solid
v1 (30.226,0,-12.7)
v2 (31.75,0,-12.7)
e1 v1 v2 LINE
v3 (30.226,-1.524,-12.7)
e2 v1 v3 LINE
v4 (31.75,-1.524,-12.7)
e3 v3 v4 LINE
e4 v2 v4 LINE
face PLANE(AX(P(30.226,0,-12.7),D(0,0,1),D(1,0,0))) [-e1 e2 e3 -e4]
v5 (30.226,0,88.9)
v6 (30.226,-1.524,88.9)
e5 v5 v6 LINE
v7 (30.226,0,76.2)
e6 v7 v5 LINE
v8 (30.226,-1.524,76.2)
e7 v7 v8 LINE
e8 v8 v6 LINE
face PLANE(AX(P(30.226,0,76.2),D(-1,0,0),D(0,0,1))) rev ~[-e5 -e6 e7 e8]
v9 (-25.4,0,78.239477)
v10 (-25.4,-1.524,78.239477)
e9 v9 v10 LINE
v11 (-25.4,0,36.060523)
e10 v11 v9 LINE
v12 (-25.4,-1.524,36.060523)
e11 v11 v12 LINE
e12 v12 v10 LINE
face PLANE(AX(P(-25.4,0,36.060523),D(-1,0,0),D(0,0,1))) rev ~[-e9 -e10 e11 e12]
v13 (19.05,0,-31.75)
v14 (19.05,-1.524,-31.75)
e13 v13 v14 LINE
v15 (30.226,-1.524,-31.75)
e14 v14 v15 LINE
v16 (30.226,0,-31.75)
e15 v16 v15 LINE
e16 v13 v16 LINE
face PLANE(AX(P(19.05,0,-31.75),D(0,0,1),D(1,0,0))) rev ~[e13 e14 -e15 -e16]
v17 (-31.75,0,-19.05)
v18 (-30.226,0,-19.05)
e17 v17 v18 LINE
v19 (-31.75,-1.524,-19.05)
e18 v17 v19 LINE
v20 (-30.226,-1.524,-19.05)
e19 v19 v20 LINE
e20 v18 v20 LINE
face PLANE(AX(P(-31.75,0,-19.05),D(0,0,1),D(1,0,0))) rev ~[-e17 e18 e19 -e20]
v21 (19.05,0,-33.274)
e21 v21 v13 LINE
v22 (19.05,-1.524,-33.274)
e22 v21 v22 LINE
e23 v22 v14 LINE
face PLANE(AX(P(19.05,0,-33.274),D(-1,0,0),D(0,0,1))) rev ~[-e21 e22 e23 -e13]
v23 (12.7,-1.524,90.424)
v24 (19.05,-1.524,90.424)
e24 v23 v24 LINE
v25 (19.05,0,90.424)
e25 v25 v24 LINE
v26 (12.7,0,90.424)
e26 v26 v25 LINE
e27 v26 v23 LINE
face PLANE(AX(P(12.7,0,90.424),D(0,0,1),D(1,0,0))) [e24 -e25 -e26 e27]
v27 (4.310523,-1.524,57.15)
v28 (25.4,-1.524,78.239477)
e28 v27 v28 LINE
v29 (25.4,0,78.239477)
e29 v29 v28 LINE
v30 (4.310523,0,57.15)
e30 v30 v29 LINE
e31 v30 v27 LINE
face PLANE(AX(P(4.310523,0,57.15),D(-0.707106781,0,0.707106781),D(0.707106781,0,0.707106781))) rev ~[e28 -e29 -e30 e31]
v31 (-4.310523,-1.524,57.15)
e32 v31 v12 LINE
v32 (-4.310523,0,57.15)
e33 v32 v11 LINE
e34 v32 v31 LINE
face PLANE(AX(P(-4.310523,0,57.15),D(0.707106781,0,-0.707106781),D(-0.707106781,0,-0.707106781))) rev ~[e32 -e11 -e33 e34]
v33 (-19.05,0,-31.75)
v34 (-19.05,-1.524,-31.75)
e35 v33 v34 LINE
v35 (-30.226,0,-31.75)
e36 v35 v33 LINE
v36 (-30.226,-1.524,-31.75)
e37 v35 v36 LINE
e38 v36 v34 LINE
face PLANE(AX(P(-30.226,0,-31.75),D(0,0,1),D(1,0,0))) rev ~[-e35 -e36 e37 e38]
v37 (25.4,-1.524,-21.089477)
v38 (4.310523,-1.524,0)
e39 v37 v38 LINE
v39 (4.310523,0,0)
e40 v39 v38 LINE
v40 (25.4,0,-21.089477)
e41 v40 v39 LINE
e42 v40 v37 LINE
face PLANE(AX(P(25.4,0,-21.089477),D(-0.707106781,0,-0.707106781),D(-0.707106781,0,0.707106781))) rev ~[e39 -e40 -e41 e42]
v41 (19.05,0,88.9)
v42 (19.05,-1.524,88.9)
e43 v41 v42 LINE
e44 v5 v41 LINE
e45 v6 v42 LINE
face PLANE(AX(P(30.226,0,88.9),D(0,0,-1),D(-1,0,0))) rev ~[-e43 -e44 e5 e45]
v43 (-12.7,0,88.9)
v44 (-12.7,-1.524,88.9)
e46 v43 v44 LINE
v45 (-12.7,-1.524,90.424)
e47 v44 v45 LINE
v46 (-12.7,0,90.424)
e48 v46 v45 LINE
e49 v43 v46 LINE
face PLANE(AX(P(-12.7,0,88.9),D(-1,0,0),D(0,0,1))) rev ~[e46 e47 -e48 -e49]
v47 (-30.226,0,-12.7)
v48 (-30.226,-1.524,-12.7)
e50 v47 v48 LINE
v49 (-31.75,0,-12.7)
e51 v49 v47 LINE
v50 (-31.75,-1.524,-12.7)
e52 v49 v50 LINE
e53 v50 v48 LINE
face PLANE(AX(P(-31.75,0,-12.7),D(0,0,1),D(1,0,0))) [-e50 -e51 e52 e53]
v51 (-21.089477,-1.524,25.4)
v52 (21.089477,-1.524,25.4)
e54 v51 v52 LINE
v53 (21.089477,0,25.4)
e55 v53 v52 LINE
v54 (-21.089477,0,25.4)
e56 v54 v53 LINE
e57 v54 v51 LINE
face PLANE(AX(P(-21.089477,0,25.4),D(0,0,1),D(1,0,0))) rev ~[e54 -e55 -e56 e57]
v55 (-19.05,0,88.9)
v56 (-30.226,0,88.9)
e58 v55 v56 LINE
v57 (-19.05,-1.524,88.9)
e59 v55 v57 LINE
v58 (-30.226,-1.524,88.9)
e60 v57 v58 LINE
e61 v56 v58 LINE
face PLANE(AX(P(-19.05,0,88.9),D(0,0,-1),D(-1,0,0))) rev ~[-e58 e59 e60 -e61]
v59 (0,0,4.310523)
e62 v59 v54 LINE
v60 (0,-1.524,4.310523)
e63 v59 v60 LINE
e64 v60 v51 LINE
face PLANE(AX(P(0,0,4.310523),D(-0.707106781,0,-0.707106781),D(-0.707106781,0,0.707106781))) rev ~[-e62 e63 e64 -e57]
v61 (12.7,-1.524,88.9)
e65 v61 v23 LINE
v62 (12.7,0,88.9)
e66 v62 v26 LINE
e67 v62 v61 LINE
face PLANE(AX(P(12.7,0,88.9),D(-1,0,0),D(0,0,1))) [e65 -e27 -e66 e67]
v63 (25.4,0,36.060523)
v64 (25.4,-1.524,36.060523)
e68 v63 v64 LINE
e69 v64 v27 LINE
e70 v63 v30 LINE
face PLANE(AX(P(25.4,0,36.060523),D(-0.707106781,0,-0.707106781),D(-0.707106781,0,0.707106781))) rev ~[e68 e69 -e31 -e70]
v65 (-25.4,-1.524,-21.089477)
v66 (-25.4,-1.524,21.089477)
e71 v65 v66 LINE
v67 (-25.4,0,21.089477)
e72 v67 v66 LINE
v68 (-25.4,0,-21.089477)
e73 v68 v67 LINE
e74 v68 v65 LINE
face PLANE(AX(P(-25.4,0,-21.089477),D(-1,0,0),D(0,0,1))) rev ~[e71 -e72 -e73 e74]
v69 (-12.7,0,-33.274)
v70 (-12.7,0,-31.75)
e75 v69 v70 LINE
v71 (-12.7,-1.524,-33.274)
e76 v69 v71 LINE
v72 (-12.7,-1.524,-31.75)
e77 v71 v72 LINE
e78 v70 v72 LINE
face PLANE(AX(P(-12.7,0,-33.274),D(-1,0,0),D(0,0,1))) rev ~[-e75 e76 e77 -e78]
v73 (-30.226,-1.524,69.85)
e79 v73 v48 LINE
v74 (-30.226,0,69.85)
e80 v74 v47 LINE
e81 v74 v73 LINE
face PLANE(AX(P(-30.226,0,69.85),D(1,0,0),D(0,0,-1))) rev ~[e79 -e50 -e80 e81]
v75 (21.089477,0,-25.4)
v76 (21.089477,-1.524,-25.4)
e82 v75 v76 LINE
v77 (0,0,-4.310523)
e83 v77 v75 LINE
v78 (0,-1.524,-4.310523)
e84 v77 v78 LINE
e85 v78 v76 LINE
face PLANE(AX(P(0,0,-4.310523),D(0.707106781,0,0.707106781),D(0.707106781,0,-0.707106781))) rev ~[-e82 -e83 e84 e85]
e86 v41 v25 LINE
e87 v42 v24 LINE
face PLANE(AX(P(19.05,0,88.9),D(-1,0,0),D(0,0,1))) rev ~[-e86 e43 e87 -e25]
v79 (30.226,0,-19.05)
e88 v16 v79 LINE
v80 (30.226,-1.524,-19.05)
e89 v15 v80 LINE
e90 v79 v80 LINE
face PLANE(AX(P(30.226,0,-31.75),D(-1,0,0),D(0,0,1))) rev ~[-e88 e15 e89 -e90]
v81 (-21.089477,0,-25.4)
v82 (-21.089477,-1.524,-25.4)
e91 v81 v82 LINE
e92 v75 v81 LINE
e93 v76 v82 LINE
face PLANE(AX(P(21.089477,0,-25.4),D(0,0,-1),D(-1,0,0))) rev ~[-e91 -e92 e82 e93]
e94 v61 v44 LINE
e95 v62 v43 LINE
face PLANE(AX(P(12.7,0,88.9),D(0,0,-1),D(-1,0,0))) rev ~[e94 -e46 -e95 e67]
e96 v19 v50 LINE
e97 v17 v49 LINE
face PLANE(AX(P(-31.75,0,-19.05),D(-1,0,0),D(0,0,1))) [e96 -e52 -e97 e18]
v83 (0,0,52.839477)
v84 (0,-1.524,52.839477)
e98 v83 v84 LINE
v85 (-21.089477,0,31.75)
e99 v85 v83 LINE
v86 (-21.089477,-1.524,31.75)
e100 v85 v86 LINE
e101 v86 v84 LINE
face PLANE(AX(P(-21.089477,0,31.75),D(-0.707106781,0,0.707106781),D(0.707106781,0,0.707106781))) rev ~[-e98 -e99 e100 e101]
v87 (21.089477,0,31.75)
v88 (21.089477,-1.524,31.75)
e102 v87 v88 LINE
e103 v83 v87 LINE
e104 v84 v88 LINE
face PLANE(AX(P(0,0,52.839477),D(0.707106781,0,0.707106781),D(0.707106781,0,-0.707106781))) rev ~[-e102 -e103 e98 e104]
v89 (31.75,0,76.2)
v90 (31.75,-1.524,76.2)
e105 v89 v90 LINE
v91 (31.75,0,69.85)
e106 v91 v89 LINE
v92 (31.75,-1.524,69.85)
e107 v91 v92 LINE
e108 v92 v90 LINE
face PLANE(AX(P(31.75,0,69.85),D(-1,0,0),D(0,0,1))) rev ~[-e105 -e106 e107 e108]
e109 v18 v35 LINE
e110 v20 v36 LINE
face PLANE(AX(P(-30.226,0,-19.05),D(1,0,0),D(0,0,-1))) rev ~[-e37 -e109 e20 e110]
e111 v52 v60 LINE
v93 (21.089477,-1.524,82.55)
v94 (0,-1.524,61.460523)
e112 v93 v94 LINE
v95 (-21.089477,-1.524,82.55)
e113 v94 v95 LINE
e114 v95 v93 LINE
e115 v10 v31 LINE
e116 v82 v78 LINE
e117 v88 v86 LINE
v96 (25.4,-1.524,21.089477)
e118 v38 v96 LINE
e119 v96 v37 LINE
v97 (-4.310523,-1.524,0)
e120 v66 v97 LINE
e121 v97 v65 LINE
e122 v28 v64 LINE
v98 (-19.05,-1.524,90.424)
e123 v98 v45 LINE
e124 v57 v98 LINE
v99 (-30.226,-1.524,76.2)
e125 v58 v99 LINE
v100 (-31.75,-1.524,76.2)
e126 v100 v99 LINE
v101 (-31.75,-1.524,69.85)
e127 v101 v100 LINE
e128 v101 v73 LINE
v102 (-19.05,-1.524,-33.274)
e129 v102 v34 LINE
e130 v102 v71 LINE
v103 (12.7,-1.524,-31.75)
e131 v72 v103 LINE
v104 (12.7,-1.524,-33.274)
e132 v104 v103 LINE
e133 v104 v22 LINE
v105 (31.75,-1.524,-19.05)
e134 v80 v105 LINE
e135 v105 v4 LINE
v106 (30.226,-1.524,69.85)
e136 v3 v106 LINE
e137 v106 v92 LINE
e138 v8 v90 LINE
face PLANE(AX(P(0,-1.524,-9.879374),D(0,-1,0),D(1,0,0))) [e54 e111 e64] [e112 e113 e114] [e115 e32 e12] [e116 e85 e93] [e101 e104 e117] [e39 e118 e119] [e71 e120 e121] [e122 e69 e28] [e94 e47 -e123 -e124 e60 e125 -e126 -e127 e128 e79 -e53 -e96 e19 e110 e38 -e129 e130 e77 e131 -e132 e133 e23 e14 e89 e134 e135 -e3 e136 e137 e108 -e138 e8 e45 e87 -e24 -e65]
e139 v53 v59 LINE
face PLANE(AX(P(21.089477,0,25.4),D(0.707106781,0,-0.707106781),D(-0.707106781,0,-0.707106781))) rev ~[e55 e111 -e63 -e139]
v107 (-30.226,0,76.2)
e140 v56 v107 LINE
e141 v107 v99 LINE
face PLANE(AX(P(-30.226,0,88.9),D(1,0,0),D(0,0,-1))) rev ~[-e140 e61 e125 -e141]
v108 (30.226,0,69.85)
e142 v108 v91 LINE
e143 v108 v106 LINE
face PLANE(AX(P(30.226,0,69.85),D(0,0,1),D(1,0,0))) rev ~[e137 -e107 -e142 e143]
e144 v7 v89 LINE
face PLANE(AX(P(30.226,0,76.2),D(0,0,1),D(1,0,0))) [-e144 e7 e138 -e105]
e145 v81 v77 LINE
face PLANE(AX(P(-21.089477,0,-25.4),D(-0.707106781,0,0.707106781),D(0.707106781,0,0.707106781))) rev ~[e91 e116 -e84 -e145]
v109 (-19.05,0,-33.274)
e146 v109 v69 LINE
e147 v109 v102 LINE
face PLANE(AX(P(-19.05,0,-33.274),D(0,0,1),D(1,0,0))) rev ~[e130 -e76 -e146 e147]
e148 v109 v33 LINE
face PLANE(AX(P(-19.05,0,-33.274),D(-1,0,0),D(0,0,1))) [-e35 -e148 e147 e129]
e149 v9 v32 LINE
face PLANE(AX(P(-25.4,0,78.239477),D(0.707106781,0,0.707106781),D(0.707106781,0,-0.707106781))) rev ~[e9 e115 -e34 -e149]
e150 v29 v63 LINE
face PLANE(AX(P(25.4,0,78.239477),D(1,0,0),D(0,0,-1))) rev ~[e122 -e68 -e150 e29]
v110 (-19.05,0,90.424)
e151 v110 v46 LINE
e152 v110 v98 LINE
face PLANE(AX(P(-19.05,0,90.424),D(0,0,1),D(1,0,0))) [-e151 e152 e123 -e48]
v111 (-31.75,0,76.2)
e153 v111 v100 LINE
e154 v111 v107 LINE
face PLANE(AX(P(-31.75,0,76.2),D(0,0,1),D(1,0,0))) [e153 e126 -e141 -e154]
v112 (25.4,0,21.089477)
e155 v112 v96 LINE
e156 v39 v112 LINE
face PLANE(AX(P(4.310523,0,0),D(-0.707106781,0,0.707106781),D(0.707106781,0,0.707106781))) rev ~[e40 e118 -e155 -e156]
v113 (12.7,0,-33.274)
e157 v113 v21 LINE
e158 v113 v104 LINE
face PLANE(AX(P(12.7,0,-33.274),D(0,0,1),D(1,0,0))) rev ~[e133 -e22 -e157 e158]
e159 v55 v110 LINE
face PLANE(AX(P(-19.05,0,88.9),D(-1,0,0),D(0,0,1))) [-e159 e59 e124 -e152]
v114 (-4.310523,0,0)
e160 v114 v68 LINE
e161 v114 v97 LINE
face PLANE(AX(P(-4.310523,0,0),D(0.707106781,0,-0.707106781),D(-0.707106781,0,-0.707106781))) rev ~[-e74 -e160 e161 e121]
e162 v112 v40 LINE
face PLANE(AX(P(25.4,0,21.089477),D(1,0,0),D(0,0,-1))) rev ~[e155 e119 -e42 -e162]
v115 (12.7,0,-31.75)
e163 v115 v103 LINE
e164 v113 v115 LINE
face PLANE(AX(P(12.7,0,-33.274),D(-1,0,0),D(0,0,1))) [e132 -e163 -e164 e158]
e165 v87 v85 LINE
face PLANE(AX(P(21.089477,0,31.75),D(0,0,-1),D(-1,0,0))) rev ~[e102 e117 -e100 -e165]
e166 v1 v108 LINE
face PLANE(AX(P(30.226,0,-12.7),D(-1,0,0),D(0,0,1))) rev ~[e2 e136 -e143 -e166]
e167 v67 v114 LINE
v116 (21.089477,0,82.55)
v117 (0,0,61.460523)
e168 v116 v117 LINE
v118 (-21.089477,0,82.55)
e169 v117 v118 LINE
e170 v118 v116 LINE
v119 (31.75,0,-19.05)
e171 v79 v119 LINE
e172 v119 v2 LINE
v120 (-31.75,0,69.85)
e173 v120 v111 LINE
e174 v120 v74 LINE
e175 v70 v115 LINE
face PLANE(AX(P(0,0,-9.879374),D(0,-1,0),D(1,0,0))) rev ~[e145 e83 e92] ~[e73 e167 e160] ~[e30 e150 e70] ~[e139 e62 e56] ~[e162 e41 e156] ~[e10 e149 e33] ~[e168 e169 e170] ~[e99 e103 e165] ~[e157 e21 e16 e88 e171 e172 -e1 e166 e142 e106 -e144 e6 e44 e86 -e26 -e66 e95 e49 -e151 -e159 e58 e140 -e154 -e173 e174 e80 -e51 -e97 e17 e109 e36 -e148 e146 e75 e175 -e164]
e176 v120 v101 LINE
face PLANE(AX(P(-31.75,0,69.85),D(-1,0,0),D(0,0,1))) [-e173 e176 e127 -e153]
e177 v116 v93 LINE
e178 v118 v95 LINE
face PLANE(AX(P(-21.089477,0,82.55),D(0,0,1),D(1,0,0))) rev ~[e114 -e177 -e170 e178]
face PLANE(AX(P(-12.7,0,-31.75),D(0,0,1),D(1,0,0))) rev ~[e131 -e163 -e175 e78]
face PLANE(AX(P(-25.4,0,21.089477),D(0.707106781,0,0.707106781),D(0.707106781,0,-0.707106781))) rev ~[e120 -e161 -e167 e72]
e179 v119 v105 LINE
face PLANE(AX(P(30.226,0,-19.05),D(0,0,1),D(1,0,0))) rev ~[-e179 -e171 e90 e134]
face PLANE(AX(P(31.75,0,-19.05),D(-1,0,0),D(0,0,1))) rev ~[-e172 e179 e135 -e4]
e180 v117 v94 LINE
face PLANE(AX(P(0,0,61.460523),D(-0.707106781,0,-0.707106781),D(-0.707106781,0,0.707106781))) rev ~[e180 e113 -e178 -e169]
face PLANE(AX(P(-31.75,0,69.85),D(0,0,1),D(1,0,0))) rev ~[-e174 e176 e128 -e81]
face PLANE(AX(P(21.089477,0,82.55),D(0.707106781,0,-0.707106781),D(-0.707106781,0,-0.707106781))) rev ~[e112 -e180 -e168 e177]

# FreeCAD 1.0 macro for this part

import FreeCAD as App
import Part
import Sketcher
from FreeCAD import Vector
Q = App.Units.Quantity


def add_polygon(sketch, points):
    """Adds a closed chain of lines whose ends are joined by coincident constraints."""
    first, n = sketch.GeometryCount, len(points)
    for a, b in zip(points, points[1:] + points[:1]):
        sketch.addGeometry(Part.LineSegment(App.Vector(*a, 0), App.Vector(*b, 0)), False)
    for i in range(n):
        sketch.addConstraint(Sketcher.Constraint("Coincident", first + i, 2, first + (i + 1) % n, 1))

doc = App.newDocument("Part")
body = doc.addObject("PartDesign::Body", "Body")

# Sketch on XZ plane
sketch1 = body.newObject("Sketcher::SketchObject", "Sketch")
sketch1.AttachmentSupport = (doc.getObject("XZ_Plane"), [""])
sketch1.MapMode = "FlatFace"
add_polygon(sketch1, [(-30.226, -12.7), (-31.75, -12.7), (-31.75, -19.05), (-30.226, -19.05), (-30.226, -31.75), (-19.05, -31.75), (-19.05, -33.274), (-12.7, -33.274), (-12.7, -31.75), (12.7, -31.75), (12.7, -33.274), (19.05, -33.274), (19.05, -31.75), (30.226, -31.75), (30.226, -19.05), (31.75, -19.05), (31.75, -12.7), (30.226, -12.7), (30.226, 69.85), (31.75, 69.85), (31.75, 76.2), (30.226, 76.2), (30.226, 88.9), (19.05, 88.9), (19.05, 90.424), (12.7, 90.424), (12.7, 88.9), (-12.7, 88.9), (-12.7, 90.424), (-19.05, 90.424), (-19.05, 88.9), (-30.226, 88.9), (-30.226, 76.2), (-31.75, 76.2), (-31.75, 69.85), (-30.226, 69.85)])  # lines 0-35
add_polygon(sketch1, [(21.089477, 25.4), (0, 4.310523), (-21.089477, 25.4)])  # lines 36-38
add_polygon(sketch1, [(-21.089477, 31.75), (0, 52.839477), (21.089477, 31.75)])  # lines 39-41
add_polygon(sketch1, [(4.310523, 57.15), (25.4, 78.239477), (25.4, 36.060523)])  # lines 42-44
add_polygon(sketch1, [(-25.4, 36.060523), (-25.4, 78.239477), (-4.310523, 57.15)])  # lines 45-47
add_polygon(sketch1, [(-21.089477, 82.55), (21.089477, 82.55), (0, 61.460523)])  # lines 48-50
add_polygon(sketch1, [(21.089477, -25.4), (-21.089477, -25.4), (0, -4.310523)])  # lines 51-53
add_polygon(sketch1, [(-25.4, -21.089477), (-25.4, 21.089477), (-4.310523, 0)])  # lines 54-56
add_polygon(sketch1, [(25.4, 21.089477), (25.4, -21.089477), (4.310523, 0)])  # lines 57-59
sketch1.addConstraint([
    Sketcher.Constraint("Horizontal", 0),
    Sketcher.Constraint("Vertical", 1),
    Sketcher.Constraint("Horizontal", 2),
    Sketcher.Constraint("Vertical", 3),
    Sketcher.Constraint("Horizontal", 4),
    Sketcher.Constraint("Vertical", 5),
    Sketcher.Constraint("Horizontal", 6),
    Sketcher.Constraint("Vertical", 7),
    Sketcher.Constraint("Horizontal", 8),
    Sketcher.Constraint("Vertical", 9),
    Sketcher.Constraint("Horizontal", 10),
    Sketcher.Constraint("Vertical", 11),
    Sketcher.Constraint("Horizontal", 12),
    Sketcher.Constraint("Vertical", 13),
    Sketcher.Constraint("Horizontal", 14),
    Sketcher.Constraint("Vertical", 15),
    Sketcher.Constraint("Horizontal", 16),
    Sketcher.Constraint("Vertical", 17),
    Sketcher.Constraint("Horizontal", 18),
    Sketcher.Constraint("Vertical", 19),
    Sketcher.Constraint("Horizontal", 20),
    Sketcher.Constraint("Vertical", 21),
    Sketcher.Constraint("Horizontal", 22),
    Sketcher.Constraint("Vertical", 23),
    Sketcher.Constraint("Horizontal", 24),
    Sketcher.Constraint("Vertical", 25),
    Sketcher.Constraint("Horizontal", 26),
    Sketcher.Constraint("Vertical", 27),
    Sketcher.Constraint("Horizontal", 28),
    Sketcher.Constraint("Vertical", 29),
    Sketcher.Constraint("Horizontal", 30),
    Sketcher.Constraint("Vertical", 31),
    Sketcher.Constraint("Horizontal", 32),
    Sketcher.Constraint("Vertical", 33),
    Sketcher.Constraint("Horizontal", 34),
    Sketcher.Constraint("Vertical", 35),
    Sketcher.Constraint("Horizontal", 38),
    Sketcher.Constraint("Horizontal", 41),
    Sketcher.Constraint("Vertical", 43),
    Sketcher.Constraint("Vertical", 45),
    Sketcher.Constraint("Horizontal", 48),
    Sketcher.Constraint("Horizontal", 51),
    Sketcher.Constraint("Vertical", 54),
    Sketcher.Constraint("Vertical", 57),
    Sketcher.Constraint("Symmetric", 38, 2, 51, 2, -1, 1),
    Sketcher.Constraint("Symmetric", 36, 2, 52, 2, -1, 1),
    Sketcher.Constraint("Symmetric", 54, 2, 57, 2, -1, 1),
    Sketcher.Constraint("Symmetric", 55, 2, 58, 2, -1, 1),
    Sketcher.Constraint("Symmetric", 6, 2, 9, 2, -2),
    Sketcher.Constraint("Symmetric", 4, 2, 11, 2, -2),
    Sketcher.Constraint("Symmetric", 2, 2, 13, 2, -2),
    Sketcher.Constraint("Symmetric", 0, 2, 15, 2, -2),
    Sketcher.Constraint("Symmetric", 24, 2, 27, 2, -2),
    Sketcher.Constraint("Symmetric", 22, 2, 29, 2, -2),
    Sketcher.Constraint("Symmetric", 20, 2, 31, 2, -2),
    Sketcher.Constraint("Symmetric", 18, 2, 33, 2, -2),
    Sketcher.Constraint("Symmetric", 42, 2, 45, 2, -2),
    Sketcher.Constraint("Symmetric", 44, 2, 46, 2, -2),
    Sketcher.Constraint("PointOnObject", 36, 2, -2),
    Sketcher.Constraint("PointOnObject", 39, 2, -2),
    Sketcher.Constraint("PointOnObject", 49, 2, -2),
    Sketcher.Constraint("PointOnObject", 55, 2, -1),
    Sketcher.Constraint("Perpendicular", 36, 37),
    Sketcher.Constraint("Perpendicular", 37, 39),
    Sketcher.Constraint("Perpendicular", 39, 40),
    Sketcher.Constraint("Perpendicular", 40, 42),
    Sketcher.Constraint("Perpendicular", 42, 44),
    Sketcher.Constraint("Parallel", 44, 46),
    Sketcher.Constraint("Perpendicular", 46, 47),
    Sketcher.Constraint("Parallel", 47, 49),
    Sketcher.Constraint("Perpendicular", 49, 50),
    Sketcher.Constraint("Perpendicular", 52, 53),
    Sketcher.Constraint("Parallel", 53, 55),
    Sketcher.Constraint("Perpendicular", 55, 56),
    Sketcher.Constraint("Perpendicular", 58, 59),
    Sketcher.Constraint("Horizontal", 4, 2, 7, 2),
    Sketcher.Constraint("Horizontal", 22, 2, 25, 2),
    Sketcher.Constraint("Vertical", 13, 2, 16, 2),
    Sketcher.Constraint("Vertical", 15, 2, 18, 2),
    Sketcher.Constraint("Vertical", 17, 2, 20, 2),
    Sketcher.Constraint("Vertical", 11, 2, 22, 2),
    Sketcher.Constraint("Vertical", 9, 2, 24, 2),
    Sketcher.Constraint("Vertical", 31, 2, 34, 2),
    Sketcher.Constraint("Vertical", 38, 2, 40, 2),
    Sketcher.Constraint("Vertical", 40, 2, 48, 2),
    Sketcher.Constraint("Vertical", 47, 2, 54, 2),
    Sketcher.Constraint("Vertical", 46, 2, 55, 2),
    Sketcher.Constraint("Equal", 28, 1),
    Sketcher.Constraint("Equal", 34, 5),
    Sketcher.Constraint("Equal", 15, 19),
    Sketcher.Constraint("Equal", 13, 21),
    Sketcher.Constraint("Equal", 11, 23),
    Sketcher.Constraint("Equal", 51, 43),
    Sketcher.Constraint("DistanceX", 8, 1, 8, 2, Q("1 in")),
    Sketcher.Constraint("DistanceY", 3, 2, 3, 1, Q("0.5 in")),
    Sketcher.Constraint("DistanceY", -1, 1, 19, 2, Q("3 in")),
    Sketcher.Constraint("DistanceY", -1, 1, 37, 2, Q("1 in")),
    Sketcher.Constraint("DistanceX", -1, 1, 42, 2, Q("1 in")),
    Sketcher.Constraint("DistanceY", 12, 2, 17, 2, Q("4 in")),
    Sketcher.Constraint("DistanceX", 0, 2, 0, 1, Q("0.06 in")),
    Sketcher.Constraint("DistanceX", 4, 1, 4, 2, Q("0.44 in")),
    Sketcher.Constraint("DistanceX", 6, 1, 6, 2, Q("0.25 in")),
    Sketcher.Constraint("DistanceY", 40, 2, 17, 2, Q("1.5 in")),
    Sketcher.Constraint("DistanceY", 44, 2, 17, 2, Q("0.5 in")),
    Sketcher.Constraint("DistanceY", -1, 1, 48, 2, Q("3.25 in")),
    Sketcher.Constraint("DistanceX", 38, 1, 38, 2, 42.178954),
])
pad1 = body.newObject("PartDesign::Pad", "Pad")
pad1.Profile = sketch1
pad1.Length = Q("0.06 in")

doc.recompute()
